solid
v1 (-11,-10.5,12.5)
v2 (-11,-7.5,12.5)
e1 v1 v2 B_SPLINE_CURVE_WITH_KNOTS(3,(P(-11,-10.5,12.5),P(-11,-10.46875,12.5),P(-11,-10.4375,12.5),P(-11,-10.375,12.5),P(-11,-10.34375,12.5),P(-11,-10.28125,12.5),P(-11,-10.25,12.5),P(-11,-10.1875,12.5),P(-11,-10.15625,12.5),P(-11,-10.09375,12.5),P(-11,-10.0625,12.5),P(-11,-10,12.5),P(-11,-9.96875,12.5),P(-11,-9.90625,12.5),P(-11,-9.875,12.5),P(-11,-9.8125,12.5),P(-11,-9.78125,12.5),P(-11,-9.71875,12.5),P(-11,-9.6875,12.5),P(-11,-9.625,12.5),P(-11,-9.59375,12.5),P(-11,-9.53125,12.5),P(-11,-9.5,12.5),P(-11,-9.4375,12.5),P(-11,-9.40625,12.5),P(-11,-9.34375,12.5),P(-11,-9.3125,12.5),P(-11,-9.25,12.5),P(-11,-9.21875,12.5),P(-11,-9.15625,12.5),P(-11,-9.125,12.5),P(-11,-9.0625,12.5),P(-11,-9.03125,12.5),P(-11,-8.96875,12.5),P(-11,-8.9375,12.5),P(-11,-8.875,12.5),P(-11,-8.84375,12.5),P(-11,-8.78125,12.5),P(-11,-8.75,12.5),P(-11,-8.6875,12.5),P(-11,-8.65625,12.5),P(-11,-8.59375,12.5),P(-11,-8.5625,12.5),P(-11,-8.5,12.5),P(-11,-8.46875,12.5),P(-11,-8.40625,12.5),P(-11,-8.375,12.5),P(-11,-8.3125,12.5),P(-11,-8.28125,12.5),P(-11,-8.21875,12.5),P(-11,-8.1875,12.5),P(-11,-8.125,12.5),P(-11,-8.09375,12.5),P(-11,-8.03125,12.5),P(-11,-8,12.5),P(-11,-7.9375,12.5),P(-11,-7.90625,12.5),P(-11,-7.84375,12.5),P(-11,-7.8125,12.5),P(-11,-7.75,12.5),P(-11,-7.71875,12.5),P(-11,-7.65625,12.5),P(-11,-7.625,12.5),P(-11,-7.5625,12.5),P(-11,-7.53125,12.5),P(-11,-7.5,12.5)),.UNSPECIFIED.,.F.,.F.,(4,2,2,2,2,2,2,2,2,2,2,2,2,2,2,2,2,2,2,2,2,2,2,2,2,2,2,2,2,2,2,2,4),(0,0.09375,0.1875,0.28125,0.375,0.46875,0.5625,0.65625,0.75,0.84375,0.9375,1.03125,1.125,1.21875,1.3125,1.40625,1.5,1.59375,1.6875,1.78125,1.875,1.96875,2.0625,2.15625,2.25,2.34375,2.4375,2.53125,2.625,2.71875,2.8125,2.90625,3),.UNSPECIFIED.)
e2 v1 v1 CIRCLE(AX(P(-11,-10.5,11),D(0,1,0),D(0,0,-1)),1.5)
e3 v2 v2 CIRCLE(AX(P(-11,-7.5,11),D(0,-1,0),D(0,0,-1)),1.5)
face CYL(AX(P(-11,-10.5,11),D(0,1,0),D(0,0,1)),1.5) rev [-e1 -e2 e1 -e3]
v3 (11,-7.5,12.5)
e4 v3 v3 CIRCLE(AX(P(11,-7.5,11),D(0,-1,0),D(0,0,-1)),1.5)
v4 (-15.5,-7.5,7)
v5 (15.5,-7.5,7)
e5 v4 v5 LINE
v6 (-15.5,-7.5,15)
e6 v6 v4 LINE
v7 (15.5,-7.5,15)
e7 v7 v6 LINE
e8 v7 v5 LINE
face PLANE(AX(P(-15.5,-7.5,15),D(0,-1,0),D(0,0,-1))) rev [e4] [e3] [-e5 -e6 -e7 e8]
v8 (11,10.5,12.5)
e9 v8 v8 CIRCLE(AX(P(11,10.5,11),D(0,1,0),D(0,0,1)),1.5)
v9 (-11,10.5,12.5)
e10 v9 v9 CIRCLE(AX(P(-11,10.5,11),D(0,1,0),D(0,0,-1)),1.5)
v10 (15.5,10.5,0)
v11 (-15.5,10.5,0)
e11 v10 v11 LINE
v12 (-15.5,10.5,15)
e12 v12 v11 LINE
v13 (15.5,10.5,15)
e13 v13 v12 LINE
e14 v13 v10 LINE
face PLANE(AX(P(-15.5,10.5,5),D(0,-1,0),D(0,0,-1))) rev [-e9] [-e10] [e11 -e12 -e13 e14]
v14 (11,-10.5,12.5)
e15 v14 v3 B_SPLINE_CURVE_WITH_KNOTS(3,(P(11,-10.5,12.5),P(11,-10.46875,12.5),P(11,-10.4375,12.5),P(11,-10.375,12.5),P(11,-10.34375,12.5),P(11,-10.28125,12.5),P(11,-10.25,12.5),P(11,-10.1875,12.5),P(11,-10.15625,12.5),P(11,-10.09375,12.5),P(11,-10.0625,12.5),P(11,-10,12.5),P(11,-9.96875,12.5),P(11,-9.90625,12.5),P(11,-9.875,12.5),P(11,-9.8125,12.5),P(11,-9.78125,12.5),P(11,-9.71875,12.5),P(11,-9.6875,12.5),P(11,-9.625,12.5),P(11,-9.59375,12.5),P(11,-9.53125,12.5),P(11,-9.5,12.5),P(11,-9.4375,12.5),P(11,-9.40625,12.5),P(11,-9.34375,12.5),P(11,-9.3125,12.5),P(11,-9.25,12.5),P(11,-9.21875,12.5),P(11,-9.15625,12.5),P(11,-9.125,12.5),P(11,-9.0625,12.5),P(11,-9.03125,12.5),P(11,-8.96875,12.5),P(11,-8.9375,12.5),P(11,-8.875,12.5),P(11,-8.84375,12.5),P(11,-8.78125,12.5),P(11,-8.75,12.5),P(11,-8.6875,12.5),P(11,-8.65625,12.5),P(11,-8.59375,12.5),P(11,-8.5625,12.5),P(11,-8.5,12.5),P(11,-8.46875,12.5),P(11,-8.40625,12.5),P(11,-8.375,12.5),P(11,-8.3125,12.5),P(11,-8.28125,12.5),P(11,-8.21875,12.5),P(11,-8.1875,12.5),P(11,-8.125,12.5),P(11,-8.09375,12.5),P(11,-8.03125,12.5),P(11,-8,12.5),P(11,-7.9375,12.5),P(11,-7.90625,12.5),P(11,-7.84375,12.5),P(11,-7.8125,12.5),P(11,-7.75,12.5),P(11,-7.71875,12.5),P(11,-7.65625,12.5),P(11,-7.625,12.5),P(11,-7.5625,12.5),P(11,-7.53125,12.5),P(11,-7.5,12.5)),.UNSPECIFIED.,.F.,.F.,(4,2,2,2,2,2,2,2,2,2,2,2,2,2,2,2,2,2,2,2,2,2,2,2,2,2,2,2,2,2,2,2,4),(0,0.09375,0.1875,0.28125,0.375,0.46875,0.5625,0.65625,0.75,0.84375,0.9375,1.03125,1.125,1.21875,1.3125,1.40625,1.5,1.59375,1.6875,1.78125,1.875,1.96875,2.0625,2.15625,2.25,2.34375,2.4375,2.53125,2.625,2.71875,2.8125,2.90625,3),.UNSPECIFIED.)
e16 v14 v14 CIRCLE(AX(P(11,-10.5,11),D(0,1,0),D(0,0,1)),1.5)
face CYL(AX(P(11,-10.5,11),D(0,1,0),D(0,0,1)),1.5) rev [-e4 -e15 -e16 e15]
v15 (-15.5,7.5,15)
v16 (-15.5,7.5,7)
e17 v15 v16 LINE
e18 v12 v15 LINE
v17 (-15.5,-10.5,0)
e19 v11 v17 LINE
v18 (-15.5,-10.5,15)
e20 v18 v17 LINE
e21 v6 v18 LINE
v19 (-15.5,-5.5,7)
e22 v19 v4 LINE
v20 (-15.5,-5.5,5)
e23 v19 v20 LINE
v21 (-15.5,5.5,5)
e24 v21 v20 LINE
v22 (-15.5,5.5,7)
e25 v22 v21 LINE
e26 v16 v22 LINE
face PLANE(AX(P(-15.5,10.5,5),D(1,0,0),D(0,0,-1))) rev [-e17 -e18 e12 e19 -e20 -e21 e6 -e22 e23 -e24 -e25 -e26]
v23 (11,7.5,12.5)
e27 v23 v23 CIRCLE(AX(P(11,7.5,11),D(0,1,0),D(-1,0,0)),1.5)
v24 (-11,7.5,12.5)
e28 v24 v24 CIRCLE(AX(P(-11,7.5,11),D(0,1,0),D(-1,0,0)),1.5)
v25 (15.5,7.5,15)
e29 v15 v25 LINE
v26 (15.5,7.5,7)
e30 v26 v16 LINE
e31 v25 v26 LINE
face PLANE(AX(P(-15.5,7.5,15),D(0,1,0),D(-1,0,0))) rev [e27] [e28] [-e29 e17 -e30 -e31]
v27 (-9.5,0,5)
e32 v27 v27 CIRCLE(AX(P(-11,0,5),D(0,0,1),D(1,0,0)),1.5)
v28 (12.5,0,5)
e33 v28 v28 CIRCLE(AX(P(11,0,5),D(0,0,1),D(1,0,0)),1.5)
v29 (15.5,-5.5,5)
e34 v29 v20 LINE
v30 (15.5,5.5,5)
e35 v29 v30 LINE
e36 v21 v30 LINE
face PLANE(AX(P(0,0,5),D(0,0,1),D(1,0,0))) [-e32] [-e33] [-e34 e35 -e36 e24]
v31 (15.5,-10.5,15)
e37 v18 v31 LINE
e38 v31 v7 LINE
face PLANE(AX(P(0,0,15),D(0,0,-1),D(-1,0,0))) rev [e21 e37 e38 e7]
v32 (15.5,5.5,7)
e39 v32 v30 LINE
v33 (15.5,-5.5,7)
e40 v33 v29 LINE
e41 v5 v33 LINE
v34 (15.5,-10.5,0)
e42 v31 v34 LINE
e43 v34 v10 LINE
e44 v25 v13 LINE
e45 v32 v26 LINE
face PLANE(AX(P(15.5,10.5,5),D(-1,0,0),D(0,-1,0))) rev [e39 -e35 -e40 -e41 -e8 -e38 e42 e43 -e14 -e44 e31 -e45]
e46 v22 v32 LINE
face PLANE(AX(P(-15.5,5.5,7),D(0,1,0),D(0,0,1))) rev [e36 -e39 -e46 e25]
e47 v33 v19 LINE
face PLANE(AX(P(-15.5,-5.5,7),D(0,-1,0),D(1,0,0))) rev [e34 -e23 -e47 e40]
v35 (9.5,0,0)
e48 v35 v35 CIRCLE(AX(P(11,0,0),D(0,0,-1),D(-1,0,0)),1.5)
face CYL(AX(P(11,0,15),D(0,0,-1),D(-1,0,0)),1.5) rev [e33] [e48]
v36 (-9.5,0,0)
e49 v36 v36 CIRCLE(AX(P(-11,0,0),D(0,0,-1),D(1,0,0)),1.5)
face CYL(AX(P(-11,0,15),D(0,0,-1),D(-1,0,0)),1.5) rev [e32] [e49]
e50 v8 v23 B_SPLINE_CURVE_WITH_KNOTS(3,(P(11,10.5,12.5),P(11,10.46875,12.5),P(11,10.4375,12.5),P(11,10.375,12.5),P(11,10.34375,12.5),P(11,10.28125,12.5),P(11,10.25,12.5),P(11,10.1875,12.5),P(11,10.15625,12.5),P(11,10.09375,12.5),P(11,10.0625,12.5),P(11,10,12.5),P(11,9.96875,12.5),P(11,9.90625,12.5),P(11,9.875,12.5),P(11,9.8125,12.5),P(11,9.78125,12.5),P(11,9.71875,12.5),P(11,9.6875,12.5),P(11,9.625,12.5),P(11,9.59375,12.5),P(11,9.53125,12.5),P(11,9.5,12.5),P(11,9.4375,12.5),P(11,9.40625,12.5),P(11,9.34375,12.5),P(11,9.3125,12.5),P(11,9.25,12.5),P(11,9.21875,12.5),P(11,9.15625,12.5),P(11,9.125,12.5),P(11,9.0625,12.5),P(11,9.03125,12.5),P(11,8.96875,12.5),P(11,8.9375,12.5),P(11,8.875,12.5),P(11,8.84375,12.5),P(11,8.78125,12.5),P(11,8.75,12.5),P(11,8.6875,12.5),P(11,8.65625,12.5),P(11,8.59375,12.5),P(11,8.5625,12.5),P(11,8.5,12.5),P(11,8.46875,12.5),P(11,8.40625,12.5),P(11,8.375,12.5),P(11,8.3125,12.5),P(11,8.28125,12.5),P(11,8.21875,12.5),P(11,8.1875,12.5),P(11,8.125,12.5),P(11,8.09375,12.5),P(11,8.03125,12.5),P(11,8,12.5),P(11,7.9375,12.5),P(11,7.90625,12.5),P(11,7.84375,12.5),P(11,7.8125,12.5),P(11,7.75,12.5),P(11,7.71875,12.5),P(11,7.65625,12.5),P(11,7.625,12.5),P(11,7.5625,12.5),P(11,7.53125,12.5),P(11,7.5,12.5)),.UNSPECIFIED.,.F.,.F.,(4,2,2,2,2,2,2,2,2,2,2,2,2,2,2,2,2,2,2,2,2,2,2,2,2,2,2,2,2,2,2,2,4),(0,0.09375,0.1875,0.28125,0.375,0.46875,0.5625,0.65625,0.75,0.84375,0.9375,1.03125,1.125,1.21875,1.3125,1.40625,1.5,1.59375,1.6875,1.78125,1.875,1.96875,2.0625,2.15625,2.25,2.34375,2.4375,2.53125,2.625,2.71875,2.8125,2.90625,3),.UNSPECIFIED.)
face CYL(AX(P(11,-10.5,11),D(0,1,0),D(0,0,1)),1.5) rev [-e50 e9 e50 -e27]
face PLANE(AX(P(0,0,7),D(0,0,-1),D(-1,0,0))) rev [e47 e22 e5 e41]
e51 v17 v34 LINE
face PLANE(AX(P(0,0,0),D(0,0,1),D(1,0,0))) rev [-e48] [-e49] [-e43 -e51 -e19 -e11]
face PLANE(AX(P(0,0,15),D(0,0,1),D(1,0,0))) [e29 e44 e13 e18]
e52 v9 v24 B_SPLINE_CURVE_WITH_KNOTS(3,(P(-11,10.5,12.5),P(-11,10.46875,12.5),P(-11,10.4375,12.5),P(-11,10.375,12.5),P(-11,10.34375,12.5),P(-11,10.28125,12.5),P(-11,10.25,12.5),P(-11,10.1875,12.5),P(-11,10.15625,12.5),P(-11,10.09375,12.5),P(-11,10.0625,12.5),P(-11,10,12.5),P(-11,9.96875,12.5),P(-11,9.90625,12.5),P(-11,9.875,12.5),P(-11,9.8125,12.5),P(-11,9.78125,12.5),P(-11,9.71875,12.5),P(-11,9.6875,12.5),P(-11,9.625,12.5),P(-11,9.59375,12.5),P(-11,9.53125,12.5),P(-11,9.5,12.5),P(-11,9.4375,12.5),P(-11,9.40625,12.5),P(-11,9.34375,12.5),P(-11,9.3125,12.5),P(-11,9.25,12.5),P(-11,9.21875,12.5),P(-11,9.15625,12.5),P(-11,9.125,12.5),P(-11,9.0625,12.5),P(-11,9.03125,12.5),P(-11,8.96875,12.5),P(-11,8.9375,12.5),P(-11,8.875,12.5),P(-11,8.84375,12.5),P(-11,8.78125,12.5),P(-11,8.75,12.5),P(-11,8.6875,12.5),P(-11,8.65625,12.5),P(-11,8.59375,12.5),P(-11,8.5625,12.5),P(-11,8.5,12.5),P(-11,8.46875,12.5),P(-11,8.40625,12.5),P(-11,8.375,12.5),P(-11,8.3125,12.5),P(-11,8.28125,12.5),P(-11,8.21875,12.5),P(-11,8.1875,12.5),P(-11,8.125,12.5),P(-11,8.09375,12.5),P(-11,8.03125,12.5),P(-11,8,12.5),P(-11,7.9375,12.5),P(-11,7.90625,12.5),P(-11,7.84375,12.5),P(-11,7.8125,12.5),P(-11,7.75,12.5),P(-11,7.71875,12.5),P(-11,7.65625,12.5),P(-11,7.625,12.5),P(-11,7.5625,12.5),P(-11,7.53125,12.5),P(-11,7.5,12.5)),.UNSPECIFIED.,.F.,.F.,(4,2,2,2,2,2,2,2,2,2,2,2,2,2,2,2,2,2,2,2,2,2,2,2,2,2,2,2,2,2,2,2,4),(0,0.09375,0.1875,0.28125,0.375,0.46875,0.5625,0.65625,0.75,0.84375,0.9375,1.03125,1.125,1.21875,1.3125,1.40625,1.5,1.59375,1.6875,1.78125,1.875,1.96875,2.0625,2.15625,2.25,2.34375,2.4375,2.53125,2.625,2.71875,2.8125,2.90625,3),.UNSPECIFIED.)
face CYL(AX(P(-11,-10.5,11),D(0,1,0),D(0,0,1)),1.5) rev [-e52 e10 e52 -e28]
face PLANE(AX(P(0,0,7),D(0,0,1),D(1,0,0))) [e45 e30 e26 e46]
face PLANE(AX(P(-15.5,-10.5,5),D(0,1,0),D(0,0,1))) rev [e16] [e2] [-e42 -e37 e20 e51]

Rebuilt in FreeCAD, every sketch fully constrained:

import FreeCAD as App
import Part
import Sketcher
Q = App.Units.Quantity

doc = App.newDocument("Part")
params = doc.addObject("Spreadsheet::Sheet", "Params")
for row, (alias, value) in enumerate([
    ("sketch1_width", "31 mm"),
    ("sketch1_height", "21 mm"),
    ("pad1_length", "5 mm"),
    ("sketch2_width", "31 mm"),
    ("sketch2_height", "3 mm"),
    ("pad2_length", "10 mm"),
    ("sketch3_diameter", "3 mm"),
    ("sketch4_diameter", "3 mm"),
    ("sketch5_width", "31 mm"),
    ("sketch5_height", "2 mm"),
    ("pad3_length", "2 mm"),
], start=1):
    params.set(f"A{row}", alias)
    params.set(f"B{row}", "=" + value)
    params.setAlias(f"B{row}", alias)

body = doc.addObject("PartDesign::Body", "Body")

sketch1 = body.newObject("Sketcher::SketchObject", "Sketch")
sketch1.AttachmentSupport = (doc.getObject("XY_Plane"), [""])
sketch1.MapMode = "FlatFace"
sketch1.addGeometry(Part.LineSegment(App.Vector(-16, 10, 0), App.Vector(-16, -10, 0)), False)
sketch1.addGeometry(Part.LineSegment(App.Vector(-16, -10, 0), App.Vector(16, -10, 0)), False)
sketch1.addGeometry(Part.LineSegment(App.Vector(16, -10, 0), App.Vector(16, 10, 0)), False)
sketch1.addGeometry(Part.LineSegment(App.Vector(16, 10, 0), App.Vector(-16, 10, 0)), False)
sketch1.addConstraint(Sketcher.Constraint("Coincident", 0, 2, 1, 1))
sketch1.addConstraint(Sketcher.Constraint("Coincident", 1, 2, 2, 1))
sketch1.addConstraint(Sketcher.Constraint("Coincident", 2, 2, 3, 1))
sketch1.addConstraint(Sketcher.Constraint("Coincident", 3, 2, 0, 1))
sketch1.addConstraint(Sketcher.Constraint("Vertical", 0))
sketch1.addConstraint(Sketcher.Constraint("Horizontal", 1))
sketch1.addConstraint(Sketcher.Constraint("Vertical", 2))
sketch1.addConstraint(Sketcher.Constraint("Horizontal", 3))
sketch1.addConstraint(Sketcher.Constraint("Symmetric", 0, 2, 2, 2, -1, 1))
sketch1.addConstraint(Sketcher.Constraint("DistanceX", 1, 1, 1, 2, Q("31 mm")))
sketch1.addConstraint(Sketcher.Constraint("DistanceY", 0, 2, 0, 1, Q("21 mm")))
sketch1.setExpression("Constraints[9]", "Params.sketch1_width")
sketch1.setExpression("Constraints[10]", "Params.sketch1_height")
pad1 = body.newObject("PartDesign::Pad", "Pad")
pad1.Profile = sketch1
pad1.setExpression("Length", "Params.pad1_length")

sketch2 = body.newObject("Sketcher::SketchObject", "Sketch001")
sketch2.AttachmentSupport = (doc.getObject("XY_Plane"), [""])
sketch2.MapMode = "FlatFace"
sketch2.AttachmentOffset = App.Placement(App.Vector(0, 0, 5), App.Rotation())
sketch2.addGeometry(Part.LineSegment(App.Vector(-15.5, 10.5, 0), App.Vector(-15.5, 7.5, 0)), False)
sketch2.addGeometry(Part.LineSegment(App.Vector(-15.5, 7.5, 0), App.Vector(15.5, 7.5, 0)), False)
sketch2.addGeometry(Part.LineSegment(App.Vector(15.5, 7.5, 0), App.Vector(15.5, 10.5, 0)), False)
sketch2.addGeometry(Part.LineSegment(App.Vector(15.5, 10.5, 0), App.Vector(-15.5, 10.5, 0)), False)
sketch2.addGeometry(Part.LineSegment(App.Vector(-15.5, -7.5, 0), App.Vector(-15.5, -10.5, 0)), False)
sketch2.addGeometry(Part.LineSegment(App.Vector(-15.5, -10.5, 0), App.Vector(15.5, -10.5, 0)), False)
sketch2.addGeometry(Part.LineSegment(App.Vector(15.5, -10.5, 0), App.Vector(15.5, -7.5, 0)), False)
sketch2.addGeometry(Part.LineSegment(App.Vector(15.5, -7.5, 0), App.Vector(-15.5, -7.5, 0)), False)
sketch2.addConstraint(Sketcher.Constraint("Coincident", 0, 2, 1, 1))
sketch2.addConstraint(Sketcher.Constraint("Coincident", 1, 2, 2, 1))
sketch2.addConstraint(Sketcher.Constraint("Coincident", 2, 2, 3, 1))
sketch2.addConstraint(Sketcher.Constraint("Coincident", 3, 2, 0, 1))
sketch2.addConstraint(Sketcher.Constraint("Coincident", 4, 2, 5, 1))
sketch2.addConstraint(Sketcher.Constraint("Coincident", 5, 2, 6, 1))
sketch2.addConstraint(Sketcher.Constraint("Coincident", 6, 2, 7, 1))
sketch2.addConstraint(Sketcher.Constraint("Coincident", 7, 2, 4, 1))
sketch2.addConstraint(Sketcher.Constraint("Vertical", 0))
sketch2.addConstraint(Sketcher.Constraint("Horizontal", 1))
sketch2.addConstraint(Sketcher.Constraint("Vertical", 2))
sketch2.addConstraint(Sketcher.Constraint("Horizontal", 3))
sketch2.addConstraint(Sketcher.Constraint("Vertical", 4))
sketch2.addConstraint(Sketcher.Constraint("Horizontal", 5))
sketch2.addConstraint(Sketcher.Constraint("Vertical", 6))
sketch2.addConstraint(Sketcher.Constraint("Horizontal", 7))
sketch2.addConstraint(Sketcher.Constraint("Symmetric", 2, 2, 4, 2, -1, 1))
sketch2.addConstraint(Sketcher.Constraint("Symmetric", 0, 2, 6, 2, -1, 1))
sketch2.addConstraint(Sketcher.Constraint("Vertical", 3, 2, 4, 2))
sketch2.addConstraint(Sketcher.Constraint("DistanceX", 1, 1, 1, 2, Q("31 mm")))
sketch2.addConstraint(Sketcher.Constraint("DistanceY", 0, 2, 0, 1, Q("3 mm")))
sketch2.addConstraint(Sketcher.Constraint("DistanceY", 4, 2, 0, 2, Q("18 mm")))
sketch2.setExpression("Constraints[19]", "Params.sketch2_width")
sketch2.setExpression("Constraints[20]", "Params.sketch2_height")
pad2 = body.newObject("PartDesign::Pad", "Pad001")
pad2.Profile = sketch2
pad2.setExpression("Length", "Params.pad2_length")

sketch3 = body.newObject("Sketcher::SketchObject", "Sketch002")
sketch3.AttachmentSupport = (doc.getObject("XZ_Plane"), [""])
sketch3.MapMode = "FlatFace"
sketch3.AttachmentOffset = App.Placement(App.Vector(0, 0, -10.5), App.Rotation())
sketch3.addGeometry(Part.Circle(App.Vector(11, 11, 0), App.Vector(0, 0, 1), 1.5), False)
sketch3.addGeometry(Part.Circle(App.Vector(-11, 11, 0), App.Vector(0, 0, 1), 1.5), False)
sketch3.addConstraint(Sketcher.Constraint("Equal", 0, 1))
sketch3.addConstraint(Sketcher.Constraint("Symmetric", 0, 3, 1, 3, -2))
sketch3.addConstraint(Sketcher.Constraint("Diameter", 0, Q("3 mm")))
sketch3.addConstraint(Sketcher.Constraint("DistanceX", -1, 1, 0, 3, Q("11 mm")))
sketch3.addConstraint(Sketcher.Constraint("DistanceY", -1, 1, 0, 3, Q("11 mm")))
sketch3.setExpression("Constraints[2]", "Params.sketch3_diameter")
pocket1 = body.newObject("PartDesign::Pocket", "Pocket")
pocket1.Profile = sketch3
pocket1.Type = "ThroughAll"
pocket1.Reversed = True

sketch4 = body.newObject("Sketcher::SketchObject", "Sketch003")
sketch4.AttachmentSupport = (doc.getObject("XY_Plane"), [""])
sketch4.MapMode = "FlatFace"
sketch4.addGeometry(Part.Circle(App.Vector(11, 0, 0), App.Vector(0, 0, 1), 1.5), False)
sketch4.addGeometry(Part.Circle(App.Vector(-11, 0, 0), App.Vector(0, 0, 1), 1.5), False)
sketch4.addConstraint(Sketcher.Constraint("Equal", 0, 1))
sketch4.addConstraint(Sketcher.Constraint("Symmetric", 0, 3, 1, 3, -1, 1))
sketch4.addConstraint(Sketcher.Constraint("PointOnObject", 0, 3, -1))
sketch4.addConstraint(Sketcher.Constraint("Diameter", 0, Q("3 mm")))
sketch4.addConstraint(Sketcher.Constraint("DistanceX", -1, 1, 0, 3, Q("11 mm")))
sketch4.setExpression("Constraints[3]", "Params.sketch4_diameter")
pocket2 = body.newObject("PartDesign::Pocket", "Pocket001")
pocket2.Profile = sketch4
pocket2.Type = "ThroughAll"
pocket2.Reversed = True

sketch5 = body.newObject("Sketcher::SketchObject", "Sketch004")
sketch5.AttachmentSupport = (doc.getObject("XY_Plane"), [""])
sketch5.MapMode = "FlatFace"
sketch5.AttachmentOffset = App.Placement(App.Vector(0, 0, 5), App.Rotation())
sketch5.addGeometry(Part.LineSegment(App.Vector(-15.5, -5.5, 0), App.Vector(-15.5, -7.5, 0)), False)
sketch5.addGeometry(Part.LineSegment(App.Vector(-15.5, -7.5, 0), App.Vector(15.5, -7.5, 0)), False)
sketch5.addGeometry(Part.LineSegment(App.Vector(15.5, -7.5, 0), App.Vector(15.5, -5.5, 0)), False)
sketch5.addGeometry(Part.LineSegment(App.Vector(15.5, -5.5, 0), App.Vector(-15.5, -5.5, 0)), False)
sketch5.addGeometry(Part.LineSegment(App.Vector(-15.5, 7.5, 0), App.Vector(-15.5, 5.5, 0)), False)
sketch5.addGeometry(Part.LineSegment(App.Vector(-15.5, 5.5, 0), App.Vector(15.5, 5.5, 0)), False)
sketch5.addGeometry(Part.LineSegment(App.Vector(15.5, 5.5, 0), App.Vector(15.5, 7.5, 0)), False)
sketch5.addGeometry(Part.LineSegment(App.Vector(15.5, 7.5, 0), App.Vector(-15.5, 7.5, 0)), False)
sketch5.addConstraint(Sketcher.Constraint("Coincident", 0, 2, 1, 1))
sketch5.addConstraint(Sketcher.Constraint("Coincident", 1, 2, 2, 1))
sketch5.addConstraint(Sketcher.Constraint("Coincident", 2, 2, 3, 1))
sketch5.addConstraint(Sketcher.Constraint("Coincident", 3, 2, 0, 1))
sketch5.addConstraint(Sketcher.Constraint("Coincident", 4, 2, 5, 1))
sketch5.addConstraint(Sketcher.Constraint("Coincident", 5, 2, 6, 1))
sketch5.addConstraint(Sketcher.Constraint("Coincident", 6, 2, 7, 1))
sketch5.addConstraint(Sketcher.Constraint("Coincident", 7, 2, 4, 1))
sketch5.addConstraint(Sketcher.Constraint("Vertical", 0))
sketch5.addConstraint(Sketcher.Constraint("Horizontal", 1))
sketch5.addConstraint(Sketcher.Constraint("Vertical", 2))
sketch5.addConstraint(Sketcher.Constraint("Horizontal", 3))
sketch5.addConstraint(Sketcher.Constraint("Vertical", 4))
sketch5.addConstraint(Sketcher.Constraint("Horizontal", 5))
sketch5.addConstraint(Sketcher.Constraint("Vertical", 6))
sketch5.addConstraint(Sketcher.Constraint("Horizontal", 7))
sketch5.addConstraint(Sketcher.Constraint("Symmetric", 2, 2, 4, 2, -1, 1))
sketch5.addConstraint(Sketcher.Constraint("Symmetric", 0, 2, 6, 2, -1, 1))
sketch5.addConstraint(Sketcher.Constraint("Vertical", 3, 2, 4, 2))
sketch5.addConstraint(Sketcher.Constraint("DistanceX", 1, 1, 1, 2, Q("31 mm")))
sketch5.addConstraint(Sketcher.Constraint("DistanceY", 0, 2, 0, 1, Q("2 mm")))
sketch5.addConstraint(Sketcher.Constraint("DistanceY", 3, 2, 4, 2, Q("11 mm")))
sketch5.setExpression("Constraints[19]", "Params.sketch5_width")
sketch5.setExpression("Constraints[20]", "Params.sketch5_height")
pad3 = body.newObject("PartDesign::Pad", "Pad002")
pad3.Profile = sketch5
pad3.setExpression("Length", "Params.pad3_length")

doc.recompute()
